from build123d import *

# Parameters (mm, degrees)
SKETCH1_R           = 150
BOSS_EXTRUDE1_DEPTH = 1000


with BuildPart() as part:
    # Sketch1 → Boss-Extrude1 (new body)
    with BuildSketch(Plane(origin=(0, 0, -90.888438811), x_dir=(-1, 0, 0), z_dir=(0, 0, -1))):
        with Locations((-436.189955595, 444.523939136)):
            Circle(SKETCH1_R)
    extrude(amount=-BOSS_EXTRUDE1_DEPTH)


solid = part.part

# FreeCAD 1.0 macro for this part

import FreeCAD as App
import Part
import Sketcher
Q = App.Units.Quantity

doc = App.newDocument("Part")
body = doc.addObject("PartDesign::Body", "Body")

# Sketch on XY plane
sketch1 = body.newObject("Sketcher::SketchObject", "Sketch")
sketch1.AttachmentSupport = (doc.getObject("XY_Plane"), [""])
sketch1.MapMode = "FlatFace"
sketch1.AttachmentOffset = App.Placement(App.Vector(0, 0, -90.888439), App.Rotation())
sketch1.addGeometry(Part.Circle(App.Vector(436, 445, 0), App.Vector(0, 0, 1), 150), False)
sketch1.addConstraint(Sketcher.Constraint("Diameter", 0, Q("300 mm")))
sketch1.addConstraint(Sketcher.Constraint("DistanceY", -1, 1, 0, 3, Q("444.523939 mm")))
sketch1.addConstraint(Sketcher.Constraint("DistanceX", -1, 1, 0, 3, Q("436.189956 mm")))
pad1 = body.newObject("PartDesign::Pad", "Pad")
pad1.Profile = sketch1
pad1.Length = 1000

doc.recompute()
